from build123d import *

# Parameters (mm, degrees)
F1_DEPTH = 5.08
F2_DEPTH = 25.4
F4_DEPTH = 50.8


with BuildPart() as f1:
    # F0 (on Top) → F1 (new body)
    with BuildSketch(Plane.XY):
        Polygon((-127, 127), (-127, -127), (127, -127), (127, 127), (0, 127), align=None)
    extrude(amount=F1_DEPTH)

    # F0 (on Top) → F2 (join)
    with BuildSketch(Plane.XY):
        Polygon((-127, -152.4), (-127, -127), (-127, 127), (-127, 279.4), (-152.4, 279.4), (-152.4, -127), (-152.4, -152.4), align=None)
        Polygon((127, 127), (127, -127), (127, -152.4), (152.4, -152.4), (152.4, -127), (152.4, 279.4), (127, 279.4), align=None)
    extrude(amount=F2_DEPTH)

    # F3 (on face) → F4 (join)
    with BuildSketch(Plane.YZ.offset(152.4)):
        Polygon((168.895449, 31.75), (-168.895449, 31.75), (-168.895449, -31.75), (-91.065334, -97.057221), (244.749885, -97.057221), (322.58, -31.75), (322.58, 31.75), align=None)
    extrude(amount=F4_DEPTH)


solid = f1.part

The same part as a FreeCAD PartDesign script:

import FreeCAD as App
import Part
import Sketcher
Q = App.Units.Quantity

doc = App.newDocument("Part")
body = doc.addObject("PartDesign::Body", "Body")

sketch1 = body.newObject("Sketcher::SketchObject", "Sketch")
sketch1.AttachmentSupport = (doc.getObject("XY_Plane"), [""])
sketch1.MapMode = "FlatFace"
sketch1.addGeometry([
    Part.LineSegment(App.Vector(-127, 127, 0), App.Vector(-127, -127, 0)),
    Part.LineSegment(App.Vector(-127, -127, 0), App.Vector(127, -127, 0)),
    Part.LineSegment(App.Vector(127, -127, 0), App.Vector(127, 127, 0)),
    Part.LineSegment(App.Vector(127, 127, 0), App.Vector(-127, 127, 0)),
], False)
sketch1.addConstraint([
    Sketcher.Constraint("Coincident", 0, 2, 1, 1),
    Sketcher.Constraint("Coincident", 1, 2, 2, 1),
    Sketcher.Constraint("Coincident", 2, 2, 3, 1),
    Sketcher.Constraint("Coincident", 3, 2, 0, 1),
    Sketcher.Constraint("Vertical", 0),
    Sketcher.Constraint("Horizontal", 1),
    Sketcher.Constraint("Vertical", 2),
    Sketcher.Constraint("Horizontal", 3),
    Sketcher.Constraint("Symmetric", 0, 2, 2, 2, -1, 1),
    Sketcher.Constraint("Equal", 3, 0),
    Sketcher.Constraint("DistanceX", 1, 1, 1, 2, Q("10 in")),
])
pad1 = body.newObject("PartDesign::Pad", "Pad")
pad1.Profile = sketch1
pad1.Length = Q("0.2 in")

sketch2 = body.newObject("Sketcher::SketchObject", "Sketch001")
sketch2.AttachmentSupport = (doc.getObject("XY_Plane"), [""])
sketch2.MapMode = "FlatFace"
sketch2.addGeometry([
    Part.LineSegment(App.Vector(-127, -152.4, 0), App.Vector(-127, 279.4, 0)),
    Part.LineSegment(App.Vector(-127, 279.4, 0), App.Vector(-152.4, 279.4, 0)),
    Part.LineSegment(App.Vector(-152.4, 279.4, 0), App.Vector(-152.4, -152.4, 0)),
    Part.LineSegment(App.Vector(-152.4, -152.4, 0), App.Vector(-127, -152.4, 0)),
    Part.LineSegment(App.Vector(127, -152.4, 0), App.Vector(152.4, -152.4, 0)),
    Part.LineSegment(App.Vector(152.4, -152.4, 0), App.Vector(152.4, 279.4, 0)),
    Part.LineSegment(App.Vector(152.4, 279.4, 0), App.Vector(127, 279.4, 0)),
    Part.LineSegment(App.Vector(127, 279.4, 0), App.Vector(127, -152.4, 0)),
], False)
sketch2.addConstraint([
    Sketcher.Constraint("Coincident", 0, 2, 1, 1),
    Sketcher.Constraint("Coincident", 1, 2, 2, 1),
    Sketcher.Constraint("Coincident", 2, 2, 3, 1),
    Sketcher.Constraint("Coincident", 3, 2, 0, 1),
    Sketcher.Constraint("Coincident", 4, 2, 5, 1),
    Sketcher.Constraint("Coincident", 5, 2, 6, 1),
    Sketcher.Constraint("Coincident", 6, 2, 7, 1),
    Sketcher.Constraint("Coincident", 7, 2, 4, 1),
    Sketcher.Constraint("Vertical", 0),
    Sketcher.Constraint("Horizontal", 1),
    Sketcher.Constraint("Vertical", 2),
    Sketcher.Constraint("Horizontal", 3),
    Sketcher.Constraint("Horizontal", 4),
    Sketcher.Constraint("Vertical", 5),
    Sketcher.Constraint("Horizontal", 6),
    Sketcher.Constraint("Vertical", 7),
    Sketcher.Constraint("Symmetric", 2, 2, 4, 2, -2),
    Sketcher.Constraint("Symmetric", 0, 2, 6, 2, -2),
    Sketcher.Constraint("DistanceX", 1, 2, 1, 1, Q("1 in")),
    Sketcher.Constraint("DistanceY", 0, 1, 0, 2, Q("17 in")),
    Sketcher.Constraint("DistanceX", 0, 2, -1, 1, Q("5 in")),
    Sketcher.Constraint("DistanceY", -1, 1, 0, 2, Q("11 in")),
])
pad2 = body.newObject("PartDesign::Pad", "Pad001")
pad2.Profile = sketch2
pad2.Length = Q("1 in")

sketch3 = body.newObject("Sketcher::SketchObject", "Sketch002")
sketch3.AttachmentSupport = (doc.getObject("YZ_Plane"), [""])
sketch3.MapMode = "FlatFace"
sketch3.AttachmentOffset = App.Placement(App.Vector(0, 0, 6 * 25.4), App.Rotation())
sketch3.addGeometry([
    Part.LineSegment(App.Vector(-168.895449, 31.75, 0), App.Vector(-168.895449, -31.75, 0)),
    Part.LineSegment(App.Vector(-168.895449, -31.75, 0), App.Vector(-91.065334, -97.057221, 0)),
    Part.LineSegment(App.Vector(-91.065334, -97.057221, 0), App.Vector(244.749885, -97.057221, 0)),
    Part.LineSegment(App.Vector(244.749885, -97.057221, 0), App.Vector(322.58, -31.75, 0)),
    Part.LineSegment(App.Vector(322.58, -31.75, 0), App.Vector(322.58, 31.75, 0)),
    Part.LineSegment(App.Vector(322.58, 31.75, 0), App.Vector(-168.895449, 31.75, 0)),
], False)
sketch3.addConstraint([
    Sketcher.Constraint("Coincident", 0, 2, 1, 1),
    Sketcher.Constraint("Coincident", 1, 2, 2, 1),
    Sketcher.Constraint("Coincident", 2, 2, 3, 1),
    Sketcher.Constraint("Coincident", 3, 2, 4, 1),
    Sketcher.Constraint("Coincident", 4, 2, 5, 1),
    Sketcher.Constraint("Coincident", 5, 2, 0, 1),
    Sketcher.Constraint("Vertical", 0),
    Sketcher.Constraint("Horizontal", 2),
    Sketcher.Constraint("Vertical", 4),
    Sketcher.Constraint("Horizontal", 5),
    Sketcher.Constraint("Horizontal", 0, 2, 3, 2),
    Sketcher.Constraint("Equal", 1, 3),
    Sketcher.Constraint("Distance", 1, Q("4 in")),
    Sketcher.Constraint("DistanceY", 0, 2, 0, 1, Q("2.5 in")),
    Sketcher.Constraint("Angle", 1, Q("-40 deg")),
    Sketcher.Constraint("DistanceX", -1, 1, 3, 2, Q("12.7 in")),
    Sketcher.Constraint("DistanceY", 0, 2, -1, 1, Q("1.25 in")),
    Sketcher.Constraint("DistanceX", 2, 1, 2, 2, 335.815219),
])
pad3 = body.newObject("PartDesign::Pad", "Pad002")
pad3.Profile = sketch3
pad3.Length = Q("2 in")

doc.recompute()
